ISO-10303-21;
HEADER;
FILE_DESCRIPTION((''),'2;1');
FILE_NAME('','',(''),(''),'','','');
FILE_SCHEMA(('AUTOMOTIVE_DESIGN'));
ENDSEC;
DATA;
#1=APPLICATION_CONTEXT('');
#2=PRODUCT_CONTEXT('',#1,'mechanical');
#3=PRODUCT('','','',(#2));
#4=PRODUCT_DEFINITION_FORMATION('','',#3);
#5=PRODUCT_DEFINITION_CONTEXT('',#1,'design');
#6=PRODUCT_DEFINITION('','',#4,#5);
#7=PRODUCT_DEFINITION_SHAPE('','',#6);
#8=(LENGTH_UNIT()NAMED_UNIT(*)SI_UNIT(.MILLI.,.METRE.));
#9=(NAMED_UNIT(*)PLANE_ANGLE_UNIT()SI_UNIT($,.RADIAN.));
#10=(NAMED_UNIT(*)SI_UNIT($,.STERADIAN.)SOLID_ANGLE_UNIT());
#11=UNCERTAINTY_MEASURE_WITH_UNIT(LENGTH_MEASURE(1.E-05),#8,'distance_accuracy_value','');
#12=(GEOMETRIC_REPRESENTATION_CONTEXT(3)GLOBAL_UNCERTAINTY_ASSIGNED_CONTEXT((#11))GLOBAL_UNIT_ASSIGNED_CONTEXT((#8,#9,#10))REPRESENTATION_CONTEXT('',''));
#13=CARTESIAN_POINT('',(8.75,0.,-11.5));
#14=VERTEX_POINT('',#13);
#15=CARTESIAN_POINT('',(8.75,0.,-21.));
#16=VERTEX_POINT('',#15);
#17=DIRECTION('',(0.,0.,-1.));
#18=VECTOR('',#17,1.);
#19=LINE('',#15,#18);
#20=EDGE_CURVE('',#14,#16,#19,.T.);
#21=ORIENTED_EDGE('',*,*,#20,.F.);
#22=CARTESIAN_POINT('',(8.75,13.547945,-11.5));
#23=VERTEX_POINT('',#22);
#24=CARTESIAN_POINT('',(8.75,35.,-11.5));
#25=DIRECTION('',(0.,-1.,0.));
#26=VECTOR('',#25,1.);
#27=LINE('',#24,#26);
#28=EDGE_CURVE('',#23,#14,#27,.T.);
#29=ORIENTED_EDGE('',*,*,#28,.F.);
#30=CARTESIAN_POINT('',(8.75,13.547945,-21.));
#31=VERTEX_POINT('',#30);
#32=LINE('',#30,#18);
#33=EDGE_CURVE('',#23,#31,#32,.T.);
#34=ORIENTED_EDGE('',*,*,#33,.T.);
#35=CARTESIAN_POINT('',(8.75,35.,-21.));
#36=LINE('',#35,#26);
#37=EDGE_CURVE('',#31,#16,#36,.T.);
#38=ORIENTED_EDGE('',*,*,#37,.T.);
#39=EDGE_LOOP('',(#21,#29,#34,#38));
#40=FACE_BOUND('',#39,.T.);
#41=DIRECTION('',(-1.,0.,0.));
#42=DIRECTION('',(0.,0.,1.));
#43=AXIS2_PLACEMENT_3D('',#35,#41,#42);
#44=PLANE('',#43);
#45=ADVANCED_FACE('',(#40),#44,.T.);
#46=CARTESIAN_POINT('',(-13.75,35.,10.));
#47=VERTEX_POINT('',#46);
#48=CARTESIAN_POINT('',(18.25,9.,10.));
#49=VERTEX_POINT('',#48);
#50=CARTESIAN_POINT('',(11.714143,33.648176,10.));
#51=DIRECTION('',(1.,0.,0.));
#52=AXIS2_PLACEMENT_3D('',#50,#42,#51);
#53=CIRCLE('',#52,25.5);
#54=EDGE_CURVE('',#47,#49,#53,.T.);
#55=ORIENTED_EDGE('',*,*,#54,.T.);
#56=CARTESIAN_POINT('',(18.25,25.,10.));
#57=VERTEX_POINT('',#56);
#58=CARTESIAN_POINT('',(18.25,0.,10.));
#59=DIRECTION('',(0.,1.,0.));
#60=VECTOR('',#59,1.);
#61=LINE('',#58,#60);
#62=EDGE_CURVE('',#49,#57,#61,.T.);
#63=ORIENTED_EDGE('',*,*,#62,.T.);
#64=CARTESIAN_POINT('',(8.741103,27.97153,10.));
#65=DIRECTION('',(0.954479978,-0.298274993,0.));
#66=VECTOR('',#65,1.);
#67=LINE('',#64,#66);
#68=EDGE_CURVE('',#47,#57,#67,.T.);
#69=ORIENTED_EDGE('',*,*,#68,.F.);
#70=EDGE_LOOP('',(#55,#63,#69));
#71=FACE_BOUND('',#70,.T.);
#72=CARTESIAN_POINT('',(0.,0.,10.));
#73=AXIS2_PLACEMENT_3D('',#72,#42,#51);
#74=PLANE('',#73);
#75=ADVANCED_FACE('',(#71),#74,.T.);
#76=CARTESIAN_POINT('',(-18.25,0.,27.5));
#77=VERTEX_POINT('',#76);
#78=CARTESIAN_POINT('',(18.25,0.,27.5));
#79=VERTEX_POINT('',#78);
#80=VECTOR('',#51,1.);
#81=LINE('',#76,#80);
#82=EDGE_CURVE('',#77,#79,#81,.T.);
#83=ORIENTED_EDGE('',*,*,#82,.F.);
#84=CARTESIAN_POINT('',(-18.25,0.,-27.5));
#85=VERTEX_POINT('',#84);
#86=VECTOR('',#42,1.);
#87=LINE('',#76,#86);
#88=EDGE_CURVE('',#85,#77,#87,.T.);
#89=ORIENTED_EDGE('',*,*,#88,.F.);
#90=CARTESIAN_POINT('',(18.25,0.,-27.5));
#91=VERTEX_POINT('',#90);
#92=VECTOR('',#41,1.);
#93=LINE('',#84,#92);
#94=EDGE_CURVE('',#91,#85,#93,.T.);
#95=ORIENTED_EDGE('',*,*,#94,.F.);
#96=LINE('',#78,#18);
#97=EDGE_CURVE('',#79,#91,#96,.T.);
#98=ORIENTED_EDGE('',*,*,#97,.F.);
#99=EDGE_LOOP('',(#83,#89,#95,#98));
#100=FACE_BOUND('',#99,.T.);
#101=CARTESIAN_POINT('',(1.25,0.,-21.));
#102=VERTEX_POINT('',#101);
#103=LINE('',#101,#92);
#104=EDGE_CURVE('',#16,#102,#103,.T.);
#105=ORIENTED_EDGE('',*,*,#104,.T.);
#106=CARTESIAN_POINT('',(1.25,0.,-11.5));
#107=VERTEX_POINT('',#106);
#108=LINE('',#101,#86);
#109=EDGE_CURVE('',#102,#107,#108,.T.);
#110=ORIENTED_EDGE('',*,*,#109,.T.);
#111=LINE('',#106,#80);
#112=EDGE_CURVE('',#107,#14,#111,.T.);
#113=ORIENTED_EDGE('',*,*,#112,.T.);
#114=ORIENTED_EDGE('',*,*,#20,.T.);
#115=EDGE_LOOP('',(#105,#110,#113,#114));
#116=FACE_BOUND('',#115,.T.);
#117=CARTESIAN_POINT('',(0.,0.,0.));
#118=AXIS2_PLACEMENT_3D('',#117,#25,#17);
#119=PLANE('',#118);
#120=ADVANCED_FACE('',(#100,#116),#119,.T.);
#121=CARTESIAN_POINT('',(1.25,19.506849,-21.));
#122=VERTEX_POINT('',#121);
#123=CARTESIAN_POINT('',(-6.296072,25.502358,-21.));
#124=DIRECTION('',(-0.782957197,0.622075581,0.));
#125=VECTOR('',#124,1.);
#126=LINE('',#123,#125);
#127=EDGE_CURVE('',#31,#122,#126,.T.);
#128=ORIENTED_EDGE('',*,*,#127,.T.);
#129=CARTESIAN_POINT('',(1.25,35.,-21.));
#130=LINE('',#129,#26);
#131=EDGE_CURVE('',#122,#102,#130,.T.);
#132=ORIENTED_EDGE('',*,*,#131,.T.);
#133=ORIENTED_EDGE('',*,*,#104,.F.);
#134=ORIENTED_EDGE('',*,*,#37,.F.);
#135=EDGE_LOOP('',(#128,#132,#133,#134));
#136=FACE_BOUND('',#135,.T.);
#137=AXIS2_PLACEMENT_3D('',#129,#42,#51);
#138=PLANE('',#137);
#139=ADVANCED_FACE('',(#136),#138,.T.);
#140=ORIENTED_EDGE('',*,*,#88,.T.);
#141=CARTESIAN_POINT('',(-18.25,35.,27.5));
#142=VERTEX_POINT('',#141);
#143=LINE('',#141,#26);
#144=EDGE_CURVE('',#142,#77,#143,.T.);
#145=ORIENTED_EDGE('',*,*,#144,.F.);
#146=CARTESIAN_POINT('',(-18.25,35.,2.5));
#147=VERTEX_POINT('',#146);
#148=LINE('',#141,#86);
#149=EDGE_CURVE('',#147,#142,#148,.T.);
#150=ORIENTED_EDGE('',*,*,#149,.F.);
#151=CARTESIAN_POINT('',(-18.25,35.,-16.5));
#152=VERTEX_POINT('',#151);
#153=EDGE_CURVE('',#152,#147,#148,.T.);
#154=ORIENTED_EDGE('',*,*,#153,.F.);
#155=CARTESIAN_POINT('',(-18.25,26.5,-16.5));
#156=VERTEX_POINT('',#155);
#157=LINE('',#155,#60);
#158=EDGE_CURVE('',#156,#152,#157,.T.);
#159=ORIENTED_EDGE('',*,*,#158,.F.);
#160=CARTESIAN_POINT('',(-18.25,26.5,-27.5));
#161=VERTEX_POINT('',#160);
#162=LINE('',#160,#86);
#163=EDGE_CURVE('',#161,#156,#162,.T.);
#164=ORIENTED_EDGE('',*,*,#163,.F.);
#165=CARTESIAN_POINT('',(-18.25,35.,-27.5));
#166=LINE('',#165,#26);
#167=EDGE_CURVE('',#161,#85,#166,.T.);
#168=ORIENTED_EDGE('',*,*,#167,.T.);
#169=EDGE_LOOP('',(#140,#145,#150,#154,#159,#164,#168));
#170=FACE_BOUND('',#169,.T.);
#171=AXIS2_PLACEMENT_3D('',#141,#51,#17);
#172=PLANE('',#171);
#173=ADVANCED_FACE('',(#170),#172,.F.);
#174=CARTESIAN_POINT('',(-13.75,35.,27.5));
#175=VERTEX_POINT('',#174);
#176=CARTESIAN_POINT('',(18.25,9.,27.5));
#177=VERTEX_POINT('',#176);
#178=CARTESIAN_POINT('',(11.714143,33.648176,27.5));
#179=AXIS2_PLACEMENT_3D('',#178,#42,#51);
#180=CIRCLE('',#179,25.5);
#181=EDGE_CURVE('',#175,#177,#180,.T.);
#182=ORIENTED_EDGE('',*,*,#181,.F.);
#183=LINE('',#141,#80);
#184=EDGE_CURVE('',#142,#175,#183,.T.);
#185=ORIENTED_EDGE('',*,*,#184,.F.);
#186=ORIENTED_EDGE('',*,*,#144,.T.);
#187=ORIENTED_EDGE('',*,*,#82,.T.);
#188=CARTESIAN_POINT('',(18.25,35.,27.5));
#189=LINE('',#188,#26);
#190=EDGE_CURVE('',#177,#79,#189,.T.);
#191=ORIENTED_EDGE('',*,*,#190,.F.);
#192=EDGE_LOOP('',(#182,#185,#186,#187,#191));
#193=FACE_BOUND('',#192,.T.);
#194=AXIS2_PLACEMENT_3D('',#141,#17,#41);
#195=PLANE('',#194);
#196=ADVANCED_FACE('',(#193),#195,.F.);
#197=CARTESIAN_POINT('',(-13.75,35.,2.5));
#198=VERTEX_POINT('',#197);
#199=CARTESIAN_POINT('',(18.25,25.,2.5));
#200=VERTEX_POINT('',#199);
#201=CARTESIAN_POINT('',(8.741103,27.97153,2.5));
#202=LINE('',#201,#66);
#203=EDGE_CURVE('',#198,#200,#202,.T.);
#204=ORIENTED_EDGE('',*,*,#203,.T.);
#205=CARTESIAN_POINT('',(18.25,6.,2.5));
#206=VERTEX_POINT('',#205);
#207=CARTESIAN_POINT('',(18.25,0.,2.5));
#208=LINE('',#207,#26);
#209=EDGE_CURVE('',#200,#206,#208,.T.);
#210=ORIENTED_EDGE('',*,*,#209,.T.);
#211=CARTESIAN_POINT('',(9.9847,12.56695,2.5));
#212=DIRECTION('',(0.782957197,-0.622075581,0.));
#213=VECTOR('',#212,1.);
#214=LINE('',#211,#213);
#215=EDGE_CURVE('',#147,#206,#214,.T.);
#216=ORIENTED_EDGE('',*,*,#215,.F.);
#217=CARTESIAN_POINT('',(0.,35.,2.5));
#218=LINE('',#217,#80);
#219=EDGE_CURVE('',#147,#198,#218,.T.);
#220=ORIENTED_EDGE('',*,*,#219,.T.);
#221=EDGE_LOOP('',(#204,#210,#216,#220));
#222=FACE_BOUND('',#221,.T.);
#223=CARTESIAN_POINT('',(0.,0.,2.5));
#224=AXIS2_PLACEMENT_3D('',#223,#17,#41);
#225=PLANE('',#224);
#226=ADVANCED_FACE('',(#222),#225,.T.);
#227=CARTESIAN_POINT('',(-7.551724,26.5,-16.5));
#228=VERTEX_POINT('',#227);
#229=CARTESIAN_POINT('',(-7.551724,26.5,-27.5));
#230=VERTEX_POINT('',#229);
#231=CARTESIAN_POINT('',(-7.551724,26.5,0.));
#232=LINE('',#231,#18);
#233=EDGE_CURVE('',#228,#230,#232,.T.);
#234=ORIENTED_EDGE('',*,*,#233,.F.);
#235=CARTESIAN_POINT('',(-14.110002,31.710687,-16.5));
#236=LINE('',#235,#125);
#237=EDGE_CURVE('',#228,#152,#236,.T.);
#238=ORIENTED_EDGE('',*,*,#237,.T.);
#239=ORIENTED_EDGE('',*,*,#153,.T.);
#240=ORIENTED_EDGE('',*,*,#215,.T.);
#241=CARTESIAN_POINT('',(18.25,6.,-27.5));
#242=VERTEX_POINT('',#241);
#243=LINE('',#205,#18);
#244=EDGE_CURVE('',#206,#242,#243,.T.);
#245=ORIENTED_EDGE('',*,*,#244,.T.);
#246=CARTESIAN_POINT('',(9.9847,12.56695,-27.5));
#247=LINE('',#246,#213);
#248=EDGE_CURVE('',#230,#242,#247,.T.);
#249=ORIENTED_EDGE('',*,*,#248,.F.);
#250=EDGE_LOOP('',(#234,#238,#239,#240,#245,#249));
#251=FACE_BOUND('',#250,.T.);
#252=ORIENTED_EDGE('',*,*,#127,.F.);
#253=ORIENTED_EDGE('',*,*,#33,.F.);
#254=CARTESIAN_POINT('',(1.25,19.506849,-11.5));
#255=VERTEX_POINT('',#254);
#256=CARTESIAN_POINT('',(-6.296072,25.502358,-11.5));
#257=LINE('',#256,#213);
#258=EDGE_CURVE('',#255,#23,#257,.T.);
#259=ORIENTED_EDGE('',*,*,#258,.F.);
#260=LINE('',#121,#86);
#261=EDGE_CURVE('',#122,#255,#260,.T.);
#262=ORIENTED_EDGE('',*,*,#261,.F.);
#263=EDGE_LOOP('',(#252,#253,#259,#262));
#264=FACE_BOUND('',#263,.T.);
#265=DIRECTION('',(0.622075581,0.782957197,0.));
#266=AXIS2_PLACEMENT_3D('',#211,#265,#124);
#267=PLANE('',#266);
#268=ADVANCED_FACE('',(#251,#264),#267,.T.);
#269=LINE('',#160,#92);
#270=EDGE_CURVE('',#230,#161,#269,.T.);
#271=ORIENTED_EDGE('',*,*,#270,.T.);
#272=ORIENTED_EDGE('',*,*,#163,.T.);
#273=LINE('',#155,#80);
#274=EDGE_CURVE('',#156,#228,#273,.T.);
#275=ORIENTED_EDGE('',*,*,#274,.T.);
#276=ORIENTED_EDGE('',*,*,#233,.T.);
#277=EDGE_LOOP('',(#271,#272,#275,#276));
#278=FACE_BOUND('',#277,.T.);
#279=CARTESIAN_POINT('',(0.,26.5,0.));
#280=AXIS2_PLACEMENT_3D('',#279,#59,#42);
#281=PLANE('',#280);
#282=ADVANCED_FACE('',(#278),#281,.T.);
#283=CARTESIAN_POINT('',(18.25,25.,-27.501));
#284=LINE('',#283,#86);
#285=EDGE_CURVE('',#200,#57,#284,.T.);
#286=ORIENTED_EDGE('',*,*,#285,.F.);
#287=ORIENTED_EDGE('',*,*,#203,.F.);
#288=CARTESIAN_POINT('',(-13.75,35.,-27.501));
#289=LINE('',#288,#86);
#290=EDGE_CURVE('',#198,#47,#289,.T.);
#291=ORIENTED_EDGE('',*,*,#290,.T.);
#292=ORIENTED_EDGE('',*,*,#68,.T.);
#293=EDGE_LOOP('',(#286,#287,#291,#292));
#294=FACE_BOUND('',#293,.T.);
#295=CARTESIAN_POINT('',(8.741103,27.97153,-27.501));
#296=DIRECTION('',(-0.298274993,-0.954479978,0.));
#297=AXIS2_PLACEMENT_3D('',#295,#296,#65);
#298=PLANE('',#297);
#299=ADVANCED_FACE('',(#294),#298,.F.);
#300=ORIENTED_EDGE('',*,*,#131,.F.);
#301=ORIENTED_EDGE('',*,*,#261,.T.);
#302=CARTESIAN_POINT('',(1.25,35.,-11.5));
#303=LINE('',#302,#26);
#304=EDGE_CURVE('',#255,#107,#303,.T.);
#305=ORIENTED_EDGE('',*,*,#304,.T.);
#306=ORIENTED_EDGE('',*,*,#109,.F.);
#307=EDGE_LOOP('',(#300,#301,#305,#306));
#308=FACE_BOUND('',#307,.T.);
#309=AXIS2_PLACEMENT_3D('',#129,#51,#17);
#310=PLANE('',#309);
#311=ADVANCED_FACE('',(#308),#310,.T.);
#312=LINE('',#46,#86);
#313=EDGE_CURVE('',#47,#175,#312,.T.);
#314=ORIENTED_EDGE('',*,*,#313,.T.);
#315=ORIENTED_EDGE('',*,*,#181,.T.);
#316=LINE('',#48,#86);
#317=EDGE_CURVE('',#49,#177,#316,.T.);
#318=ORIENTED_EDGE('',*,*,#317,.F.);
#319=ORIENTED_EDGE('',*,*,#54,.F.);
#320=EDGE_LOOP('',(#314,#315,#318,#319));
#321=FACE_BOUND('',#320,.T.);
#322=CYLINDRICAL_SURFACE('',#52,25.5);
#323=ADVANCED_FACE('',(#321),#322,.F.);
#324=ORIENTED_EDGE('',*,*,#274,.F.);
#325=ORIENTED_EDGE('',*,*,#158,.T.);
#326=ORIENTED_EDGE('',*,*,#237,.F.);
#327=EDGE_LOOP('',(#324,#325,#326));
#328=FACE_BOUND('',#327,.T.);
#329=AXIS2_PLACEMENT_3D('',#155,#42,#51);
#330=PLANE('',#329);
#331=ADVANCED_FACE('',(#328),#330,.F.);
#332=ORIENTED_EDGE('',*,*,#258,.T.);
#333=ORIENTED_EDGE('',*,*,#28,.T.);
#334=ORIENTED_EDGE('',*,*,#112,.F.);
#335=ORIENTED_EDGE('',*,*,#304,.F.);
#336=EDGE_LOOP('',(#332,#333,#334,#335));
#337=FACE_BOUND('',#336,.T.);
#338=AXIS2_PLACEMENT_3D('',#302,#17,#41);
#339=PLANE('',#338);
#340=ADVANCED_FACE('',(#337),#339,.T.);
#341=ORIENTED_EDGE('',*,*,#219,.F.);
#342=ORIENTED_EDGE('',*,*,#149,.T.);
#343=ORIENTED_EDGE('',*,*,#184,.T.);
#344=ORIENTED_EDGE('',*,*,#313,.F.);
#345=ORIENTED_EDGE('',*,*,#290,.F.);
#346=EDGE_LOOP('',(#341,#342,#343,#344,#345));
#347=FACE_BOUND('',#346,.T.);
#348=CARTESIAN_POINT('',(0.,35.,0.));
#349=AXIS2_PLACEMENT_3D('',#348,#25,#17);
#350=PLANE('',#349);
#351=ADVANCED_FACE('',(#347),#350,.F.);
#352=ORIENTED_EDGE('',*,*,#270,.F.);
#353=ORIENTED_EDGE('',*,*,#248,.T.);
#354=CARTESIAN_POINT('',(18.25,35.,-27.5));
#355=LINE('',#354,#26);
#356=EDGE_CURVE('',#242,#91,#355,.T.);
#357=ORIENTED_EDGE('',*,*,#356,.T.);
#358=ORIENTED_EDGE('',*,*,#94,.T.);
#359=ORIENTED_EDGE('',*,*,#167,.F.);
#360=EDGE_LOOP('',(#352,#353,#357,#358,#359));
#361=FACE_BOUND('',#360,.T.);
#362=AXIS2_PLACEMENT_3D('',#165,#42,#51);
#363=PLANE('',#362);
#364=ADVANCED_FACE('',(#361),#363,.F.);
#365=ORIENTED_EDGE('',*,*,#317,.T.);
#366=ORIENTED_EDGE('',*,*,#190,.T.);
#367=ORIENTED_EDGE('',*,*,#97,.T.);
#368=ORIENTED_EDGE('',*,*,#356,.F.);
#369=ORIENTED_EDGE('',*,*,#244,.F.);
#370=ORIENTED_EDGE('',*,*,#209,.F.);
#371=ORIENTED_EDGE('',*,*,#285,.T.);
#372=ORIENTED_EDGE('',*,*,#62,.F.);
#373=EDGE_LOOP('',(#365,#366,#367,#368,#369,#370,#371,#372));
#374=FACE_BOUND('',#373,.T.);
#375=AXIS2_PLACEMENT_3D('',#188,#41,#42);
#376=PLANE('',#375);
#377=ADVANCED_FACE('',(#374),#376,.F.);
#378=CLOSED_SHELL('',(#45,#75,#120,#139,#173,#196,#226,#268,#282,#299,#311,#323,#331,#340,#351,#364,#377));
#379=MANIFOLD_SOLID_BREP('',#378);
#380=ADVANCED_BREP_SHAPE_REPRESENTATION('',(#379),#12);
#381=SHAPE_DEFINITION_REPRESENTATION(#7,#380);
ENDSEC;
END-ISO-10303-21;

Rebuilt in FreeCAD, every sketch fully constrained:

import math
import FreeCAD as App
import Part
import Sketcher

V = App.Vector
Q = App.Units.Quantity


def add_polygon(sketch, points):
    """Adds a closed chain of lines whose ends are joined by coincident constraints."""
    first, n = sketch.GeometryCount, len(points)
    for a, b in zip(points, points[1:] + points[:1]):
        sketch.addGeometry(Part.LineSegment(App.Vector(*a, 0), App.Vector(*b, 0)), False)
    for i in range(n):
        sketch.addConstraint(Sketcher.Constraint("Coincident", first + i, 2, first + (i + 1) % n, 1))

doc = App.newDocument("Part")
body = doc.addObject("PartDesign::Body", "Body")

# Sketch on XZ plane
sketch1 = doc.addObject("Sketcher::SketchObject", "Sketch")
body.addObject(sketch1)
sketch1.AttachmentSupport = (doc.XZ_Plane, [""])
sketch1.MapMode = "FlatFace"
add_polygon(sketch1, [(-18, -28), (-18, 28), (18, 28), (18, -28)])  # lines 0-3
add_polygon(sketch1, [(9, -12), (1, -12), (1, -21), (9, -21)])  # lines 4-7
sketch1.addConstraint([
    Sketcher.Constraint("Vertical", 0),
    Sketcher.Constraint("Horizontal", 1),
    Sketcher.Constraint("Vertical", 2),
    Sketcher.Constraint("Horizontal", 3),
    Sketcher.Constraint("Horizontal", 4),
    Sketcher.Constraint("Vertical", 5),
    Sketcher.Constraint("Horizontal", 6),
    Sketcher.Constraint("Vertical", 7),
    Sketcher.Constraint("Symmetric", 0, 2, 2, 2, -1, 1),
    Sketcher.Constraint("DistanceY", 0, 1, 0, 2, Q("55 mm")),
    Sketcher.Constraint("DistanceX", 1, 1, 1, 2, Q("36.5 mm")),
    Sketcher.Constraint("DistanceX", 4, 2, 4, 1, Q("7.5 mm")),
    Sketcher.Constraint("DistanceY", 5, 2, 5, 1, Q("9.5 mm")),
    Sketcher.Constraint("DistanceY", 5, 2, -1, 1, Q("21 mm")),
    Sketcher.Constraint("DistanceX", 4, 2, 2, 2, Q("17 mm")),
])
pad1 = doc.addObject("PartDesign::Pad", "Pad")
body.addObject(pad1)
pad1.Profile = sketch1
pad1.Length = 35
pad1.Reversed = True

# Sketch on XZ plane
sketch2 = doc.addObject("Sketcher::SketchObject", "Sketch001")
body.addObject(sketch2)
sketch2.AttachmentSupport = (doc.XZ_Plane, [""])
sketch2.MapMode = "FlatFace"
sketch2.AttachmentOffset = App.Placement(V(0, 0, -35), App.Rotation())
add_polygon(sketch2, [(-18, -28), (-18, -16), (-7, -16), (-7, -28)])  # lines 0-3
sketch2.addConstraint([
    Sketcher.Constraint("Vertical", 0),
    Sketcher.Constraint("Horizontal", 1),
    Sketcher.Constraint("Vertical", 2),
    Sketcher.Constraint("Horizontal", 3),
    Sketcher.Constraint("Equal", 3, 0),
    Sketcher.Constraint("DistanceX", 1, 1, 1, 2, Q("11 mm")),
    Sketcher.Constraint("DistanceY", 0, 2, -1, 1, Q("16.5 mm")),
    Sketcher.Constraint("DistanceX", 0, 2, -1, 1, Q("18.25 mm")),
])
pocket1 = doc.addObject("PartDesign::Pocket", "Pocket")
body.addObject(pocket1)
pocket1.Profile = sketch2
pocket1.Length = 8.5
pocket1.Reversed = True

# Sketch on XY plane
sketch3 = doc.addObject("Sketcher::SketchObject", "Sketch002")
body.addObject(sketch3)
sketch3.AttachmentSupport = (doc.XY_Plane, [""])
sketch3.MapMode = "FlatFace"
sketch3.AttachmentOffset = App.Placement(V(0, 0, -27.5), App.Rotation())
add_polygon(sketch3, [(-8, 26), (-18, 35), (18, 35), (18, 6)])  # lines 0-3
sketch3.addConstraint([
    Sketcher.Constraint("Horizontal", 1),
    Sketcher.Constraint("Vertical", 2),
    Sketcher.Constraint("Parallel", 0, 3),
    Sketcher.Constraint("DistanceY", 2, 2, 2, 1, Q("29 mm")),
    Sketcher.Constraint("DistanceX", 1, 1, 1, 2, Q("36.5 mm")),
    Sketcher.Constraint("DistanceY", -1, 1, 0, 2, Q("35 mm")),
    Sketcher.Constraint("DistanceY", -1, 1, 3, 2, Q("26.5 mm")),
    Sketcher.Constraint("DistanceX", 0, 2, -1, 1, Q("18.25 mm")),
])
pocket2 = doc.addObject("PartDesign::Pocket", "Pocket001")
body.addObject(pocket2)
pocket2.Profile = sketch3
pocket2.Length = 30
pocket2.Reversed = True

# Sketch on XY plane
sketch4 = doc.addObject("Sketcher::SketchObject", "Sketch003")
body.addObject(sketch4)
sketch4.AttachmentSupport = (doc.XY_Plane, [""])
sketch4.MapMode = "FlatFace"
sketch4.AttachmentOffset = App.Placement(V(0, 0, 27.5), App.Rotation())
sketch4.addGeometry([
    Part.ArcOfCircle(Part.Circle(V(12, 34, 0), V(0, 0, 1), 26), math.radians(177), math.radians(285)),
    Part.LineSegment(V(18, 9, 0), V(18, 35, 0)),
    Part.LineSegment(V(18, 35, 0), V(-14, 35, 0)),
], False)
sketch4.addConstraint([
    Sketcher.Constraint("Coincident", 0, 2, 1, 1),
    Sketcher.Constraint("Coincident", 1, 2, 2, 1),
    Sketcher.Constraint("Coincident", 2, 2, 0, 1),
    Sketcher.Constraint("Vertical", 1),
    Sketcher.Constraint("Horizontal", 2),
    Sketcher.Constraint("Radius", 0, Q("25.5 mm")),
    Sketcher.Constraint("DistanceX", 2, 2, 2, 1, Q("32 mm")),
    Sketcher.Constraint("DistanceY", 1, 1, 1, 2, Q("26 mm")),
    Sketcher.Constraint("DistanceY", -1, 1, 0, 2, Q("9 mm")),
    Sketcher.Constraint("DistanceX", -1, 1, 0, 2, Q("18.25 mm")),
])
pocket3 = doc.addObject("PartDesign::Pocket", "Pocket002")
body.addObject(pocket3)
pocket3.Profile = sketch4
pocket3.Length = 17.5

# Sketch on XY plane
sketch5 = doc.addObject("Sketcher::SketchObject", "Sketch004")
body.addObject(sketch5)
sketch5.AttachmentSupport = (doc.XY_Plane, [""])
sketch5.MapMode = "FlatFace"
sketch5.AttachmentOffset = App.Placement(V(0, 0, 10), App.Rotation())
add_polygon(sketch5, [(18, 35), (-14, 35), (18, 25)])  # lines 0-2
sketch5.addConstraint([
    Sketcher.Constraint("Horizontal", 0),
    Sketcher.Constraint("Vertical", 2),
    Sketcher.Constraint("DistanceX", 0, 2, 0, 1, Q("32 mm")),
    Sketcher.Constraint("DistanceY", 2, 1, 2, 2, Q("10 mm")),
    Sketcher.Constraint("DistanceY", -1, 1, 0, 2, Q("35 mm")),
    Sketcher.Constraint("DistanceX", 0, 2, -1, 1, Q("13.75 mm")),
])
pocket4 = doc.addObject("PartDesign::Pocket", "Pocket003")
body.addObject(pocket4)
pocket4.Profile = sketch5
pocket4.Type = "UpToFirst"

doc.recompute()
